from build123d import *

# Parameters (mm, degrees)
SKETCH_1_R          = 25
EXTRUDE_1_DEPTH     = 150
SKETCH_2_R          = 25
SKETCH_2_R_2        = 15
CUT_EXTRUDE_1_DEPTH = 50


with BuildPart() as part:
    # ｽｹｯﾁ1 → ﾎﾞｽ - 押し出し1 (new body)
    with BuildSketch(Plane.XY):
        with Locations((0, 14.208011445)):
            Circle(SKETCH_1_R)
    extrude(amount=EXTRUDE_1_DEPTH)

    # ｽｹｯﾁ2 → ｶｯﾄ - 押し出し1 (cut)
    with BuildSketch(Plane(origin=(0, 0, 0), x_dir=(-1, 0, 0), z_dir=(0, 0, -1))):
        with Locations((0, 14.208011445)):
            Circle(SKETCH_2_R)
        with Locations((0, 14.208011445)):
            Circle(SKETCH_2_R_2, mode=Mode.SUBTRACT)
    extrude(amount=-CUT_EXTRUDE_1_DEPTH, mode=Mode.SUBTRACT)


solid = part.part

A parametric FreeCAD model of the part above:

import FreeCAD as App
import Part
import Sketcher
from FreeCAD import Vector
Q = App.Units.Quantity

doc = App.newDocument("Part")
body = doc.addObject("PartDesign::Body", "Body")

sketch1 = body.newObject("Sketcher::SketchObject", "Sketch")
sketch1.AttachmentSupport = (doc.getObject("XY_Plane"), [""])
sketch1.MapMode = "FlatFace"
sketch1.addGeometry(Part.Circle(Vector(0, 14, 0), Vector(0, 0, 1), 25), False)
sketch1.addConstraint([
    Sketcher.Constraint("PointOnObject", 0, 3, -2),
    Sketcher.Constraint("Diameter", 0, Q("50 mm")),
    Sketcher.Constraint("DistanceY", -1, 1, 0, 3, Q("14.208011 mm")),
])
pad1 = body.newObject("PartDesign::Pad", "Pad")
pad1.Profile = sketch1
pad1.Length = 150

sketch2 = body.newObject("Sketcher::SketchObject", "Sketch001")
sketch2.AttachmentSupport = (doc.getObject("XY_Plane"), [""])
sketch2.MapMode = "FlatFace"
sketch2.addGeometry([
    Part.Circle(Vector(0, 14, 0), Vector(0, 0, 1), 25),
    Part.Circle(Vector(0, 14, 0), Vector(0, 0, 1), 15),
], False)
sketch2.addConstraint([
    Sketcher.Constraint("Coincident", 1, 3, 0, 3),
    Sketcher.Constraint("PointOnObject", 0, 3, -2),
    Sketcher.Constraint("Diameter", 0, Q("50 mm")),
    Sketcher.Constraint("Diameter", 1, Q("30 mm")),
    Sketcher.Constraint("DistanceY", -1, 1, 0, 3, Q("14.208011 mm")),
])
pocket1 = body.newObject("PartDesign::Pocket", "Pocket")
pocket1.Profile = sketch2
pocket1.Length = 50
pocket1.Reversed = True

doc.recompute()
